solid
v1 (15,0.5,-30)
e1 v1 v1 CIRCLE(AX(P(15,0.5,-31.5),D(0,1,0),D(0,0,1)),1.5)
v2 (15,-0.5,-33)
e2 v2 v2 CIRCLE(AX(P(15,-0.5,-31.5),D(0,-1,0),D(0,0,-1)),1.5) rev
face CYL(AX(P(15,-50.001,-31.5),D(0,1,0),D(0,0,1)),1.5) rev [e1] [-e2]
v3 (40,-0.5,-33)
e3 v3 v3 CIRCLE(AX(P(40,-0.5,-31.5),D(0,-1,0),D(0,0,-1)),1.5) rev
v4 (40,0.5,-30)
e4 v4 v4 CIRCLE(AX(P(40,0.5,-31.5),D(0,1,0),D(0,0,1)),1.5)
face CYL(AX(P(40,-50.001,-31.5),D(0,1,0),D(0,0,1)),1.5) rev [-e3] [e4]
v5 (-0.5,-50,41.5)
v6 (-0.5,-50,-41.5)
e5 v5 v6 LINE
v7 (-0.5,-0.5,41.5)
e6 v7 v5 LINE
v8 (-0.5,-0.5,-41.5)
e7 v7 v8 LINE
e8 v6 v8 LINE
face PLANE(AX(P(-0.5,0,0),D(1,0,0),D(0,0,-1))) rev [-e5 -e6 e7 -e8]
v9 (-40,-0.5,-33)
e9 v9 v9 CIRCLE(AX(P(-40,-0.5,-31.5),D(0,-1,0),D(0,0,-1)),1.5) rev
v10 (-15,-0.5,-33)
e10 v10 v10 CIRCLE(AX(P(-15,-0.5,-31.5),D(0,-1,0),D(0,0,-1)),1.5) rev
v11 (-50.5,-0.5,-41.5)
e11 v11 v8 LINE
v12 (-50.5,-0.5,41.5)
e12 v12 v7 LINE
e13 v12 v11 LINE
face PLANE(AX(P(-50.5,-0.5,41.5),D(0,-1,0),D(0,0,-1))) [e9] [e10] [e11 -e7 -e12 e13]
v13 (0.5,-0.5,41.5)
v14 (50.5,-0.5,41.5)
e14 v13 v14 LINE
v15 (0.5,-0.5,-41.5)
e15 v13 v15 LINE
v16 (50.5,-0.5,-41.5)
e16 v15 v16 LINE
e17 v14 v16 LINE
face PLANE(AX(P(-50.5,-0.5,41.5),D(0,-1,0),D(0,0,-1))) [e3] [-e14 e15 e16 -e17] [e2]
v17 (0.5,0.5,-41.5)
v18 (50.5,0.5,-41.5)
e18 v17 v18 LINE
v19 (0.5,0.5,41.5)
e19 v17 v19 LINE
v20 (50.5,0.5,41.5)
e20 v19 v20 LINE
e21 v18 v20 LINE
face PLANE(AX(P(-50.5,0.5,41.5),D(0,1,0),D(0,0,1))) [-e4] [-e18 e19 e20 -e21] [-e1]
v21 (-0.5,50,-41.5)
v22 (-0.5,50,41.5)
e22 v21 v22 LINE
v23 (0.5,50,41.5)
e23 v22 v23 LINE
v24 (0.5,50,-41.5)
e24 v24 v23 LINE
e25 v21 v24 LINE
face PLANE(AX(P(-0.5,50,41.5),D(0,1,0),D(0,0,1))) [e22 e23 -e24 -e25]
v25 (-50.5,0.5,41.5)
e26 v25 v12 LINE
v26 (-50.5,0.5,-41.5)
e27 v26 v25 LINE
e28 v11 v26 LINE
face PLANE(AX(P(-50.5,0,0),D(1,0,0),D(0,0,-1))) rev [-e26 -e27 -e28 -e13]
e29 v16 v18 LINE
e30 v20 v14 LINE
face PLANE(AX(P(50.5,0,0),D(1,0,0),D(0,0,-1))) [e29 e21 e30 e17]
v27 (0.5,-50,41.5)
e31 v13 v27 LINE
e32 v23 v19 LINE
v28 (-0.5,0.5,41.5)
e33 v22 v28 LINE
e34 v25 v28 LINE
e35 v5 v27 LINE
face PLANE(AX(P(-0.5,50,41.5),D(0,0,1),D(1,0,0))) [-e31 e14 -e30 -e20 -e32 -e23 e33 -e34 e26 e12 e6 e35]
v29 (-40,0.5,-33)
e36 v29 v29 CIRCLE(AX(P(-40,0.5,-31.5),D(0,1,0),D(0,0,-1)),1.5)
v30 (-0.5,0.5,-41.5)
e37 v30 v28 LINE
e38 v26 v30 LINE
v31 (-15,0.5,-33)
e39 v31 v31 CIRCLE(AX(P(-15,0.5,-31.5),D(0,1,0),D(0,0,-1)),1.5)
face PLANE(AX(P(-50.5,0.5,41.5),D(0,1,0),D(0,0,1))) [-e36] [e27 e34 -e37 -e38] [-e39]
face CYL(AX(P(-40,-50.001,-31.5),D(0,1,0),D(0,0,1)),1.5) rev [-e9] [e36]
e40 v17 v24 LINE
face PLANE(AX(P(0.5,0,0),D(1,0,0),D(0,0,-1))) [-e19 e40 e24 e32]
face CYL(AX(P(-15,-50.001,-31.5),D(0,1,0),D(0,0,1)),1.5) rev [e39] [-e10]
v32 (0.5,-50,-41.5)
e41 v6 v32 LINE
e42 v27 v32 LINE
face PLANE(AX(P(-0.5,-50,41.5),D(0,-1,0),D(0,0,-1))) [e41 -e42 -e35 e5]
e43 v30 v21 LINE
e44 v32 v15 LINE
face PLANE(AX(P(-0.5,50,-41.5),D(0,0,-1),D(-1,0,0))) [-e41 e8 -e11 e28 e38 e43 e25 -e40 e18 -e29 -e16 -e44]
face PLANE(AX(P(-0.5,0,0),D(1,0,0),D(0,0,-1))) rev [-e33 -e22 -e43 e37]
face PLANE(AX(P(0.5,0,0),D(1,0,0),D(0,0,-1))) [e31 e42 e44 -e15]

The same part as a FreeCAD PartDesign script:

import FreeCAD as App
import Part
import Sketcher

V = App.Vector
Q = App.Units.Quantity

doc = App.newDocument("Part")
body = doc.addObject("PartDesign::Body", "Body")

# Sketch on YZ plane
sketch1 = body.newObject("Sketcher::SketchObject", "Sketch")
sketch1.AttachmentSupport = (doc.getObject("YZ_Plane"), [""])
sketch1.MapMode = "FlatFace"
sketch1.addGeometry([
    Part.LineSegment(V(50, 41.5, 0), V(-50, 41.5, 0)),
    Part.LineSegment(V(-50, 41.5, 0), V(-50, -41.5, 0)),
    Part.LineSegment(V(-50, -41.5, 0), V(50, -41.5, 0)),
    Part.LineSegment(V(50, -41.5, 0), V(50, 41.5, 0)),
], False)
sketch1.addConstraint([
    Sketcher.Constraint("Coincident", 0, 2, 1, 1),
    Sketcher.Constraint("Coincident", 1, 2, 2, 1),
    Sketcher.Constraint("Coincident", 2, 2, 3, 1),
    Sketcher.Constraint("Coincident", 3, 2, 0, 1),
    Sketcher.Constraint("Horizontal", 0),
    Sketcher.Constraint("Vertical", 1),
    Sketcher.Constraint("Horizontal", 2),
    Sketcher.Constraint("Vertical", 3),
    Sketcher.Constraint("Symmetric", 0, 2, 2, 2, -1, 1),
    Sketcher.Constraint("DistanceX", 0, 2, 0, 1, Q("100 mm")),
    Sketcher.Constraint("DistanceY", 1, 2, 1, 1, Q("83 mm")),
])
pad1 = body.newObject("PartDesign::Pad", "Pad")
pad1.Profile = sketch1
pad1.Type = "TwoLengths"
pad1.Length = 0.5
pad1.Length2 = 0.5

# Sketch on YZ plane
sketch2 = body.newObject("Sketcher::SketchObject", "Sketch001")
sketch2.AttachmentSupport = (doc.getObject("YZ_Plane"), [""])
sketch2.MapMode = "FlatFace"
sketch2.AttachmentOffset = App.Placement(V(0, 0, 0.5), App.Rotation())
sketch2.addGeometry([
    Part.LineSegment(V(0.5, 41.5, 0), V(-0.5, 41.5, 0)),
    Part.LineSegment(V(-0.5, 41.5, 0), V(-0.5, -41.5, 0)),
    Part.LineSegment(V(-0.5, -41.5, 0), V(0.5, -41.5, 0)),
    Part.LineSegment(V(0.5, -41.5, 0), V(0.5, 41.5, 0)),
], False)
sketch2.addConstraint([
    Sketcher.Constraint("Coincident", 0, 2, 1, 1),
    Sketcher.Constraint("Coincident", 1, 2, 2, 1),
    Sketcher.Constraint("Coincident", 2, 2, 3, 1),
    Sketcher.Constraint("Coincident", 3, 2, 0, 1),
    Sketcher.Constraint("Horizontal", 0),
    Sketcher.Constraint("Vertical", 1),
    Sketcher.Constraint("Horizontal", 2),
    Sketcher.Constraint("Vertical", 3),
    Sketcher.Constraint("Symmetric", 0, 2, 2, 2, -1, 1),
    Sketcher.Constraint("DistanceX", 0, 2, 0, 1, Q("1 mm")),
    Sketcher.Constraint("DistanceY", 1, 2, 1, 1, Q("83 mm")),
])
pad2 = body.newObject("PartDesign::Pad", "Pad001")
pad2.Profile = sketch2
pad2.Type = "TwoLengths"
pad2.Length = 50
pad2.Length2 = 51

# Sketch on XZ plane
sketch3 = body.newObject("Sketcher::SketchObject", "Sketch002")
sketch3.AttachmentSupport = (doc.getObject("XZ_Plane"), [""])
sketch3.MapMode = "FlatFace"
sketch3.AttachmentOffset = App.Placement(V(0, 0, -0.5), App.Rotation())
sketch3.addGeometry(Part.Circle(V(15, -31.5, 0), V(0, 0, 1), 1.5), False)
sketch3.addConstraint([
    Sketcher.Constraint("Diameter", 0, Q("3 mm")),
    Sketcher.Constraint("DistanceX", -1, 1, 0, 3, Q("15 mm")),
    Sketcher.Constraint("DistanceY", 0, 3, -1, 1, Q("31.5 mm")),
])
pocket1 = body.newObject("PartDesign::Pocket", "Pocket")
pocket1.Profile = sketch3
pocket1.Type = "UpToFirst"
pocket1.Reversed = True

# Sketch on XZ plane
sketch4 = body.newObject("Sketcher::SketchObject", "Sketch003")
sketch4.AttachmentSupport = (doc.getObject("XZ_Plane"), [""])
sketch4.MapMode = "FlatFace"
sketch4.AttachmentOffset = App.Placement(V(0, 0, -0.5), App.Rotation())
sketch4.addGeometry(Part.Circle(V(40, -31.5, 0), V(0, 0, 1), 1.5), False)
sketch4.addConstraint([
    Sketcher.Constraint("Diameter", 0, Q("3 mm")),
    Sketcher.Constraint("DistanceX", -1, 1, 0, 3, Q("40 mm")),
    Sketcher.Constraint("DistanceY", 0, 3, -1, 1, Q("31.5 mm")),
])
pocket2 = body.newObject("PartDesign::Pocket", "Pocket001")
pocket2.Profile = sketch4
pocket2.Type = "UpToFirst"
pocket2.Reversed = True

# Sketch on XZ plane
sketch5 = body.newObject("Sketcher::SketchObject", "Sketch004")
sketch5.AttachmentSupport = (doc.getObject("XZ_Plane"), [""])
sketch5.MapMode = "FlatFace"
sketch5.AttachmentOffset = App.Placement(V(0, 0, -0.5), App.Rotation())
sketch5.addGeometry(Part.Circle(V(-40, -31.5, 0), V(0, 0, 1), 1.5), False)
sketch5.addConstraint([
    Sketcher.Constraint("Diameter", 0, Q("3 mm")),
    Sketcher.Constraint("DistanceX", 0, 3, -1, 1, Q("40 mm")),
    Sketcher.Constraint("DistanceY", 0, 3, -1, 1, Q("31.5 mm")),
])
pocket3 = body.newObject("PartDesign::Pocket", "Pocket002")
pocket3.Profile = sketch5
pocket3.Type = "UpToFirst"
pocket3.Reversed = True

# Sketch on XZ plane
sketch6 = body.newObject("Sketcher::SketchObject", "Sketch005")
sketch6.AttachmentSupport = (doc.getObject("XZ_Plane"), [""])
sketch6.MapMode = "FlatFace"
sketch6.AttachmentOffset = App.Placement(V(0, 0, -0.5), App.Rotation())
sketch6.addGeometry(Part.Circle(V(-15, -31.5, 0), V(0, 0, 1), 1.5), False)
sketch6.addConstraint([
    Sketcher.Constraint("Diameter", 0, Q("3 mm")),
    Sketcher.Constraint("DistanceX", 0, 3, -1, 1, Q("15 mm")),
    Sketcher.Constraint("DistanceY", 0, 3, -1, 1, Q("31.5 mm")),
])
pocket4 = body.newObject("PartDesign::Pocket", "Pocket003")
pocket4.Profile = sketch6
pocket4.Type = "UpToFirst"
pocket4.Reversed = True

doc.recompute()
